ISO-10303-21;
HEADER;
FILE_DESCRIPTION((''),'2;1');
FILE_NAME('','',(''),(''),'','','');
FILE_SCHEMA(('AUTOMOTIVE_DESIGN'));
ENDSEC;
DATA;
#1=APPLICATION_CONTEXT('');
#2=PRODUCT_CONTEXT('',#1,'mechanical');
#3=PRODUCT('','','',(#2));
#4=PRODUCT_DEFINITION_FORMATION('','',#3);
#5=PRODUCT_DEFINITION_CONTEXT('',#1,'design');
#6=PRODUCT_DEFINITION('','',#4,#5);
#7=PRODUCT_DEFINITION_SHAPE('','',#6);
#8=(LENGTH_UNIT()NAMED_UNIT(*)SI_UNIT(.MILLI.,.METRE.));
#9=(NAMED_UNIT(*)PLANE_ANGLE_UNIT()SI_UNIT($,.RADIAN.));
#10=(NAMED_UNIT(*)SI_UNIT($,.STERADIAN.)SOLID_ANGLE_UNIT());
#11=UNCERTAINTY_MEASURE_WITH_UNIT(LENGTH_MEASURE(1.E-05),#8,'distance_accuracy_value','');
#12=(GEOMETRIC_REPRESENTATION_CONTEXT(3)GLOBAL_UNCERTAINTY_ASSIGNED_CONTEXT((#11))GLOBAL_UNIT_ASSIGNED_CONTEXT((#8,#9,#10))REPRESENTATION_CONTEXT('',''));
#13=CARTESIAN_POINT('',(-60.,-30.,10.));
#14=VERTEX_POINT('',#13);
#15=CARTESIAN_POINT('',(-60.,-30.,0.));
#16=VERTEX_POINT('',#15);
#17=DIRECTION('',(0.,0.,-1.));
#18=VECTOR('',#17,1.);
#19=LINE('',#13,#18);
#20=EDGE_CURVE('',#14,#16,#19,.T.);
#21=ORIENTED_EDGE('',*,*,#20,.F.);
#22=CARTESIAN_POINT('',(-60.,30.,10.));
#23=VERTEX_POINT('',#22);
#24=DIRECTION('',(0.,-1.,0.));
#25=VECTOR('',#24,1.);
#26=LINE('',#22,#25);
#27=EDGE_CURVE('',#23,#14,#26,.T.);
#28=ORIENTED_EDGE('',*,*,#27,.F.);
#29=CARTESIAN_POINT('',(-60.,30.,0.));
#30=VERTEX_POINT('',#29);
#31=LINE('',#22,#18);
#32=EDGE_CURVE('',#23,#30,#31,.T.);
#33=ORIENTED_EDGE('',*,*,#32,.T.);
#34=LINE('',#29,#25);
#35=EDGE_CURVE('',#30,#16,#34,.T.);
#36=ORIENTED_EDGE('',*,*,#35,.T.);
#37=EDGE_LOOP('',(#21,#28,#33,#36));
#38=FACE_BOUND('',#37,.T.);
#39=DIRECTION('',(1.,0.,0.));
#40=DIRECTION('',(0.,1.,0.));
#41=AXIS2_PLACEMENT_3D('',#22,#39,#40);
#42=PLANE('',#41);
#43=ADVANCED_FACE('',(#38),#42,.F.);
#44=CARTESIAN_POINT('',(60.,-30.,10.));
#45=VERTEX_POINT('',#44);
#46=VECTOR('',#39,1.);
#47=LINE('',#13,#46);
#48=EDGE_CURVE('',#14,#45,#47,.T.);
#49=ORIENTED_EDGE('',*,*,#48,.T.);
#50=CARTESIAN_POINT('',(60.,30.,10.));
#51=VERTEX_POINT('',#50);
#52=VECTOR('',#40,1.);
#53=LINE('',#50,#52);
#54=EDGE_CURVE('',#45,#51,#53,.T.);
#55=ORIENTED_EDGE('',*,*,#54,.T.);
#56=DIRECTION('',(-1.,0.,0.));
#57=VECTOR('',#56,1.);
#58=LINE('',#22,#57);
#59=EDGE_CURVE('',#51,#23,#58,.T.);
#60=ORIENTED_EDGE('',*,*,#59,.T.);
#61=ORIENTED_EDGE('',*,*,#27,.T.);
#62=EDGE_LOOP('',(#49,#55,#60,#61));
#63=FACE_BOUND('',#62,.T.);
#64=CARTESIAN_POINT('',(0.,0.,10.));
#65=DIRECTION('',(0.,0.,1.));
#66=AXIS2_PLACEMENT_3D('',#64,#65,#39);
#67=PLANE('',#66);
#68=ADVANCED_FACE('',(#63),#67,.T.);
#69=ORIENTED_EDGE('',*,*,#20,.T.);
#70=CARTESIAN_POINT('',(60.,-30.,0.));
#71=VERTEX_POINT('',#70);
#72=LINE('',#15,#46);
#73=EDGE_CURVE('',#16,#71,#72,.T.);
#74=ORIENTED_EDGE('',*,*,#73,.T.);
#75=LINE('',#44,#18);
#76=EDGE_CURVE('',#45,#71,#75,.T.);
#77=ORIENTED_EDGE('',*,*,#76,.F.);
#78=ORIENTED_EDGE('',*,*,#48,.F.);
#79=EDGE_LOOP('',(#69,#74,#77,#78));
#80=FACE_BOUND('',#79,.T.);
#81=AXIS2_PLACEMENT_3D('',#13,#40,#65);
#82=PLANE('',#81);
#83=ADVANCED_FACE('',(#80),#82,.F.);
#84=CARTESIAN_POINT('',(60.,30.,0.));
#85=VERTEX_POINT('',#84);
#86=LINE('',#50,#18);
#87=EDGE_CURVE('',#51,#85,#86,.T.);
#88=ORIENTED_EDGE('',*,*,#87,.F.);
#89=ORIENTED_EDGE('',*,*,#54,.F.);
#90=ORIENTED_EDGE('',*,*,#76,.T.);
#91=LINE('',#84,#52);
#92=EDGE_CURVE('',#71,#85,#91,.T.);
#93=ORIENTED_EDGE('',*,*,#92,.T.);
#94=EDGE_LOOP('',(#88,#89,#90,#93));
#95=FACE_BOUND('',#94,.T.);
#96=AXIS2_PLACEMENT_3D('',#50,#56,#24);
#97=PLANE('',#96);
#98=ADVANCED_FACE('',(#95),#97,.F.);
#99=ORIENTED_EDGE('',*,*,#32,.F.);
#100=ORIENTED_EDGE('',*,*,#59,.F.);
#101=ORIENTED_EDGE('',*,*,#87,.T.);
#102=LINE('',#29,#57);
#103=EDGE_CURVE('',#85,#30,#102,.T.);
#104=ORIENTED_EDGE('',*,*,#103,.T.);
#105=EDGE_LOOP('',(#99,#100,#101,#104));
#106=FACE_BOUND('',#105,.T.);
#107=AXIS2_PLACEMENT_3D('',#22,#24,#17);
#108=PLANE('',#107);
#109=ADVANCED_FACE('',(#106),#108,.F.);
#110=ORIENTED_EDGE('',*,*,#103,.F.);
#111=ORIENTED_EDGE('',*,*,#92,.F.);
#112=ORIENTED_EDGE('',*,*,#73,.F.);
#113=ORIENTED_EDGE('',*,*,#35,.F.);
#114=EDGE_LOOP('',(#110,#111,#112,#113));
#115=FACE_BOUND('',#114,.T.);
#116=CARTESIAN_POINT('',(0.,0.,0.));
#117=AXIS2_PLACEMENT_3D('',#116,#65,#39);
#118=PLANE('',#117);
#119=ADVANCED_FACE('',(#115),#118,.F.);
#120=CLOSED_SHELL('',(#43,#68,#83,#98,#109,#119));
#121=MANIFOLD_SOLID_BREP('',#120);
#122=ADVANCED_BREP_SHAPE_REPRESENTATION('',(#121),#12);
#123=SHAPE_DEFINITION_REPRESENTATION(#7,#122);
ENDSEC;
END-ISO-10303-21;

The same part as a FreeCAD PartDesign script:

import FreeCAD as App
import Part
import Sketcher
Q = App.Units.Quantity

doc = App.newDocument("Part")
body = doc.addObject("PartDesign::Body", "Body")

# Sketch on XY plane
sketch1 = doc.addObject("Sketcher::SketchObject", "Sketch")
body.addObject(sketch1)
sketch1.AttachmentSupport = (doc.XY_Plane, [""])
sketch1.MapMode = "FlatFace"
sketch1.addGeometry([
    Part.LineSegment(App.Vector(-60, 30, 0), App.Vector(-60, -30, 0)),
    Part.LineSegment(App.Vector(-60, -30, 0), App.Vector(60, -30, 0)),
    Part.LineSegment(App.Vector(60, -30, 0), App.Vector(60, 30, 0)),
    Part.LineSegment(App.Vector(60, 30, 0), App.Vector(-60, 30, 0)),
], False)
sketch1.addConstraint([
    Sketcher.Constraint("Coincident", 0, 2, 1, 1),
    Sketcher.Constraint("Coincident", 1, 2, 2, 1),
    Sketcher.Constraint("Coincident", 2, 2, 3, 1),
    Sketcher.Constraint("Coincident", 3, 2, 0, 1),
    Sketcher.Constraint("Vertical", 0),
    Sketcher.Constraint("Horizontal", 1),
    Sketcher.Constraint("Vertical", 2),
    Sketcher.Constraint("Horizontal", 3),
    Sketcher.Constraint("Symmetric", 0, 2, 2, 2, -1, 1),
    Sketcher.Constraint("DistanceX", 1, 1, 1, 2, Q("120 mm")),
    Sketcher.Constraint("DistanceY", 0, 2, 0, 1, Q("60 mm")),
])
pad1 = doc.addObject("PartDesign::Pad", "Pad")
body.addObject(pad1)
pad1.Profile = sketch1
pad1.Length = 10

doc.recompute()
